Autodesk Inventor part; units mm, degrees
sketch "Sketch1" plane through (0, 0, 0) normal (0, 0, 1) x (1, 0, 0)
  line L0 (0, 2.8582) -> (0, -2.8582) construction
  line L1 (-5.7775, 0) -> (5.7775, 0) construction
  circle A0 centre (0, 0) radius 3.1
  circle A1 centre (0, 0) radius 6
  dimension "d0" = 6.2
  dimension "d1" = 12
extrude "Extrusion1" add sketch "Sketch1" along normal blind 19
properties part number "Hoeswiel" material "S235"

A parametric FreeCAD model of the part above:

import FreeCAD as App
import Part
import Sketcher

V = App.Vector
Q = App.Units.Quantity

doc = App.newDocument("Part")
body = doc.addObject("PartDesign::Body", "Body")

# Sketch on XY plane
sketch1 = body.newObject("Sketcher::SketchObject", "Sketch")
sketch1.AttachmentSupport = (doc.getObject("XY_Plane"), [""])
sketch1.MapMode = "FlatFace"
sketch1.addGeometry([
    Part.Circle(V(0, 0, 0), V(0, 0, 1), 6),
    Part.Circle(V(0, 0, 0), V(0, 0, 1), 3.1),
], False)
sketch1.addConstraint([
    Sketcher.Constraint("Coincident", 0, 3, -1, 1),
    Sketcher.Constraint("Coincident", 1, 3, -1, 1),
    Sketcher.Constraint("Diameter", 0, Q("12 mm")),
    Sketcher.Constraint("Diameter", 1, Q("6.2 mm")),
])
pad1 = body.newObject("PartDesign::Pad", "Pad")
pad1.Profile = sketch1
pad1.Length = 19

doc.recompute()
